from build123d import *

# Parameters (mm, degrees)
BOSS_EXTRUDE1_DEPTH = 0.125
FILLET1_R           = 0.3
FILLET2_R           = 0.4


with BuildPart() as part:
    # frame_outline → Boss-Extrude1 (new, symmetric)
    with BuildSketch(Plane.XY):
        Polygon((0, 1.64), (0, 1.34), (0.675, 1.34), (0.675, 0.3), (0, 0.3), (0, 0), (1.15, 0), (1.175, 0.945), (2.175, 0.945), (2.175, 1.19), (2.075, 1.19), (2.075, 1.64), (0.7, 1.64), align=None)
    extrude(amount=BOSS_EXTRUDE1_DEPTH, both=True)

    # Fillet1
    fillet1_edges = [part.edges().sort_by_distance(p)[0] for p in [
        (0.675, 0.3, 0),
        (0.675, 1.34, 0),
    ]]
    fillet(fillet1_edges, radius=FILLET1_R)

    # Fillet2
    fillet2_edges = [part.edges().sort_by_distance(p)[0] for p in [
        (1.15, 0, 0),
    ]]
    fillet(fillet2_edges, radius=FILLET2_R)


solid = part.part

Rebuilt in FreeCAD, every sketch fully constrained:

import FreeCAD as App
import Part
import Sketcher
Q = App.Units.Quantity


def edges_at(feature, points):
    """Names of the edges that pass closest to the given points."""
    edges = feature.Shape.Edges
    near = lambda p: min(range(len(edges)), key=lambda i: edges[i].distToShape(Part.Vertex(*p))[0])
    return sorted({f"Edge{near(p) + 1}" for p in points})


def add_polygon(sketch, points):
    """Adds a closed chain of lines whose ends are joined by coincident constraints."""
    first, n = sketch.GeometryCount, len(points)
    for a, b in zip(points, points[1:] + points[:1]):
        sketch.addGeometry(Part.LineSegment(App.Vector(*a, 0), App.Vector(*b, 0)), False)
    for i in range(n):
        sketch.addConstraint(Sketcher.Constraint("Coincident", first + i, 2, first + (i + 1) % n, 1))

doc = App.newDocument("Part")
params = doc.addObject("Spreadsheet::Sheet", "Params")
for row, (alias, value) in enumerate([
    ("sketch1_width", "1 mm"),
    ("sketch1_width2", "0.1 mm"),
    ("sketch1_height", "0.3 mm"),
    ("sketch1_width3", "1.15 mm"),
    ("sketch1_height2", "1.04 mm"),
    ("pad1_length", "0.25 mm"),
    ("fillet_radius", "0.3 mm"),
    ("fillet2_radius", "0.4 mm"),
], start=1):
    params.set(f"A{row}", alias)
    params.set(f"B{row}", "=" + value)
    params.setAlias(f"B{row}", alias)

body = doc.addObject("PartDesign::Body", "Body")

sketch1 = body.newObject("Sketcher::SketchObject", "Sketch")
sketch1.AttachmentSupport = (doc.getObject("XY_Plane"), [""])
sketch1.MapMode = "FlatFace"
add_polygon(sketch1, [(0, 1.64), (0, 1.34), (0.68, 1.34), (0.68, 0.3), (0, 0.3), (0, 0), (1.15, 0), (1.18, 0.94), (2.17, 0.94), (2.17, 1.19), (2.08, 1.19), (2.08, 1.64)])
sketch1.addConstraint([
    Sketcher.Constraint("Vertical", 0),
    Sketcher.Constraint("Horizontal", 1),
    Sketcher.Constraint("Vertical", 2),
    Sketcher.Constraint("Horizontal", 3),
    Sketcher.Constraint("Vertical", 4),
    Sketcher.Constraint("Horizontal", 5),
    Sketcher.Constraint("Horizontal", 7),
    Sketcher.Constraint("Vertical", 8),
    Sketcher.Constraint("Horizontal", 9),
    Sketcher.Constraint("Vertical", 10),
    Sketcher.Constraint("Horizontal", 11),
    Sketcher.Constraint("Coincident", 4, 2, -1, 1),
    Sketcher.Constraint("PointOnObject", 0, 2, -2),
    Sketcher.Constraint("Equal", 0, 4),
    Sketcher.Constraint("DistanceX", 7, 1, 7, 2, Q("1 mm")),
    Sketcher.Constraint("DistanceX", 9, 2, 9, 1, Q("0.1 mm")),
    Sketcher.Constraint("DistanceY", 0, 2, 0, 1, Q("0.3 mm")),
    Sketcher.Constraint("DistanceX", 5, 1, 5, 2, Q("1.15 mm")),
    Sketcher.Constraint("DistanceY", 2, 2, 2, 1, Q("1.04 mm")),
    Sketcher.Constraint("DistanceY", 10, 1, 10, 2, Q("0.45 mm")),
    Sketcher.Constraint("DistanceX", 1, 2, 6, 2, Q("0.5 mm")),
    Sketcher.Constraint("DistanceX", 1, 1, 1, 2, Q("0.675 mm")),
    Sketcher.Constraint("DistanceY", 8, 1, 8, 2, Q("0.245 mm")),
])
sketch1.setExpression("Constraints[26]", "Params.sketch1_width")
sketch1.setExpression("Constraints[27]", "Params.sketch1_width2")
sketch1.setExpression("Constraints[28]", "Params.sketch1_height")
sketch1.setExpression("Constraints[29]", "Params.sketch1_width3")
sketch1.setExpression("Constraints[30]", "Params.sketch1_height2")
pad1 = body.newObject("PartDesign::Pad", "Pad")
pad1.Profile = sketch1
pad1.setExpression("Length", "Params.pad1_length")
pad1.Midplane = True
doc.recompute()

fillet = body.newObject("PartDesign::Fillet", "Fillet")
fillet.Base = (pad1, edges_at(pad1, [(0.675, 0.3, 0), (0.675, 1.34, 0)]))
fillet.setExpression("Radius", "Params.fillet_radius")
doc.recompute()

fillet2 = body.newObject("PartDesign::Fillet", "Fillet001")
fillet2.Base = (fillet, edges_at(fillet, [(1.15, 0, 0)]))
fillet2.setExpression("Radius", "Params.fillet2_radius")

doc.recompute()
